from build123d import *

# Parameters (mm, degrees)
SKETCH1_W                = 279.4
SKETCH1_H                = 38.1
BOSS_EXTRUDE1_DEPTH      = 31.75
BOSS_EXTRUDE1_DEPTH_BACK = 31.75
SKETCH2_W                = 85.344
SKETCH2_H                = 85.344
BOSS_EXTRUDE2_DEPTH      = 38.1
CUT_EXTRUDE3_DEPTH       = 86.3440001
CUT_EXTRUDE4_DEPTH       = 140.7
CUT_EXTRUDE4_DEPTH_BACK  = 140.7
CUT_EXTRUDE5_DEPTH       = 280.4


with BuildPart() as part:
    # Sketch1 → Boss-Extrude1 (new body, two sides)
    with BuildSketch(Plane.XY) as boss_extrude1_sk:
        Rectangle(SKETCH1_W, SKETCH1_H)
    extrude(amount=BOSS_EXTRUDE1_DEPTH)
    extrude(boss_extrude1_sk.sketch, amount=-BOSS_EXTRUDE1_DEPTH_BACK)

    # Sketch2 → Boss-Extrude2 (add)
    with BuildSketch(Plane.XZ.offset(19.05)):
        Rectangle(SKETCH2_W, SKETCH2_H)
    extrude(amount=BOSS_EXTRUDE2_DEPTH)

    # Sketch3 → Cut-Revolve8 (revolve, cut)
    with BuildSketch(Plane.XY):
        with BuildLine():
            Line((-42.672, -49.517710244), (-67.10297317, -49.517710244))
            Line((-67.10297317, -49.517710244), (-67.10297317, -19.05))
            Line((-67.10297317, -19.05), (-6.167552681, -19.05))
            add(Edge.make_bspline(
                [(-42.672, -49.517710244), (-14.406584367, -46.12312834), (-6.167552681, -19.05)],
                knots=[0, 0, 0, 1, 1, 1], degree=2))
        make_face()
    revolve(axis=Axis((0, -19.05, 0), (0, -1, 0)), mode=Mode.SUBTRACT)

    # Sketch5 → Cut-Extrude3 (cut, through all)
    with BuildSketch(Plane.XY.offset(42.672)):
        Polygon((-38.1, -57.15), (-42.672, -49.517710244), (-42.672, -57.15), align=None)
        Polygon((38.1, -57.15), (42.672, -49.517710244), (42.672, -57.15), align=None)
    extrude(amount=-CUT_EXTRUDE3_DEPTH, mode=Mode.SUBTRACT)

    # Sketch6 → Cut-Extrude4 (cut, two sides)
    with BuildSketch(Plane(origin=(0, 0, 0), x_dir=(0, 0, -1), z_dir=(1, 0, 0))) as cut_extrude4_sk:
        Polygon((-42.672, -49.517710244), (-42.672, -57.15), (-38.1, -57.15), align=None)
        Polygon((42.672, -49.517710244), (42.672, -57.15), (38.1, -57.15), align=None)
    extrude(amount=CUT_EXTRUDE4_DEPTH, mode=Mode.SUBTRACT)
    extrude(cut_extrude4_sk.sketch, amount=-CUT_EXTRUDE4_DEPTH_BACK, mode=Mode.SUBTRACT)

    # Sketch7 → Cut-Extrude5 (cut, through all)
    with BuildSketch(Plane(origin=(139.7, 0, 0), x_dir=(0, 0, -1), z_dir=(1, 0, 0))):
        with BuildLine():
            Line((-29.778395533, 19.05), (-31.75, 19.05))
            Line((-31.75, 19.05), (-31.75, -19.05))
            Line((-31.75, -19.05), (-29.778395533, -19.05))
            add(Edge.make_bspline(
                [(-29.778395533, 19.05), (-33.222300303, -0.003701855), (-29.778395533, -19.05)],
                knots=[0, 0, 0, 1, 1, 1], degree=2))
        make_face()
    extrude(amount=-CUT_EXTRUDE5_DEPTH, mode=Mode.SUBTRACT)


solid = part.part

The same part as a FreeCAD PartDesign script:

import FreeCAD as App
import Part
import Sketcher
from FreeCAD import Vector
Q = App.Units.Quantity

doc = App.newDocument("Part")
body = doc.addObject("PartDesign::Body", "Body")

sketch1 = body.newObject("Sketcher::SketchObject", "Sketch")
sketch1.AttachmentSupport = (doc.getObject("XY_Plane"), [""])
sketch1.MapMode = "FlatFace"
sketch1.addGeometry([
    Part.LineSegment(Vector(-140, 19, 0), Vector(-140, -19, 0)),
    Part.LineSegment(Vector(-140, -19, 0), Vector(140, -19, 0)),
    Part.LineSegment(Vector(140, -19, 0), Vector(140, 19, 0)),
    Part.LineSegment(Vector(140, 19, 0), Vector(-140, 19, 0)),
], False)
sketch1.addConstraint([
    Sketcher.Constraint("Coincident", 0, 2, 1, 1),
    Sketcher.Constraint("Coincident", 1, 2, 2, 1),
    Sketcher.Constraint("Coincident", 2, 2, 3, 1),
    Sketcher.Constraint("Coincident", 3, 2, 0, 1),
    Sketcher.Constraint("Vertical", 0),
    Sketcher.Constraint("Horizontal", 1),
    Sketcher.Constraint("Vertical", 2),
    Sketcher.Constraint("Horizontal", 3),
    Sketcher.Constraint("Symmetric", 0, 2, 2, 2, -1, 1),
    Sketcher.Constraint("DistanceX", 1, 1, 1, 2, Q("11 in")),
    Sketcher.Constraint("DistanceY", 0, 2, 0, 1, Q("1.5 in")),
])
pad1 = body.newObject("PartDesign::Pad", "Pad")
pad1.Profile = sketch1
pad1.Type = "TwoLengths"
pad1.Length = Q("1.25 in")
pad1.Length2 = Q("1.25 in")

sketch2 = body.newObject("Sketcher::SketchObject", "Sketch001")
sketch2.AttachmentSupport = (doc.getObject("XZ_Plane"), [""])
sketch2.MapMode = "FlatFace"
sketch2.AttachmentOffset = App.Placement(Vector(0, 0, 0.75 * 25.4), App.Rotation())
sketch2.addGeometry([
    Part.LineSegment(Vector(-43, 43, 0), Vector(-43, -43, 0)),
    Part.LineSegment(Vector(-43, -43, 0), Vector(43, -43, 0)),
    Part.LineSegment(Vector(43, -43, 0), Vector(43, 43, 0)),
    Part.LineSegment(Vector(43, 43, 0), Vector(-43, 43, 0)),
], False)
sketch2.addConstraint([
    Sketcher.Constraint("Coincident", 0, 2, 1, 1),
    Sketcher.Constraint("Coincident", 1, 2, 2, 1),
    Sketcher.Constraint("Coincident", 2, 2, 3, 1),
    Sketcher.Constraint("Coincident", 3, 2, 0, 1),
    Sketcher.Constraint("Vertical", 0),
    Sketcher.Constraint("Horizontal", 1),
    Sketcher.Constraint("Vertical", 2),
    Sketcher.Constraint("Horizontal", 3),
    Sketcher.Constraint("Symmetric", 0, 2, 2, 2, -1, 1),
    Sketcher.Constraint("Equal", 3, 0),
    Sketcher.Constraint("DistanceX", 1, 1, 1, 2, Q("3.36 in")),
])
pad2 = body.newObject("PartDesign::Pad", "Pad001")
pad2.Profile = sketch2
pad2.Length = Q("1.5 in")

sketch3 = body.newObject("Sketcher::SketchObject", "Sketch002")
sketch3.AttachmentSupport = (doc.getObject("XY_Plane"), [""])
sketch3.MapMode = "FlatFace"
sketch3.addGeometry([
    Part.LineSegment(Vector(-67.102973, -49.51771, 0), Vector(-42.672, -49.51771, 0)),
    Part.BSplineCurve([Vector(-42.672, -49.51771, 0), Vector(-14.406584, -46.123128, 0), Vector(-6.167553, -19.05, 0)], [3, 3], [0, 1], False, 2, [1, 1, 1], False),
    Part.LineSegment(Vector(-6.167553, -19.05, 0), Vector(-67.102973, -19.05, 0)),
    Part.LineSegment(Vector(-67.102973, -19.05, 0), Vector(-67.102973, -49.51771, 0)),
], False)
sketch3.addConstraint([
    Sketcher.Constraint("Block", 1),
    Sketcher.Constraint("Coincident", 0, 2, 1, 1),
    Sketcher.Constraint("Coincident", 1, 2, 2, 1),
    Sketcher.Constraint("Coincident", 2, 2, 3, 1),
    Sketcher.Constraint("Coincident", 3, 2, 0, 1),
    Sketcher.Constraint("Horizontal", 0),
    Sketcher.Constraint("Horizontal", 2),
    Sketcher.Constraint("Vertical", 3),
    Sketcher.Constraint("DistanceX", 2, 2, 2, 1, 60.93542),
])
groove = body.newObject("PartDesign::Groove", "Groove")
groove.Profile = sketch3
groove.ReferenceAxis = (sketch3, ["V_Axis"])
groove.Angle = 360

sketch4 = body.newObject("Sketcher::SketchObject", "Sketch003")
sketch4.AttachmentSupport = (doc.getObject("XY_Plane"), [""])
sketch4.MapMode = "FlatFace"
sketch4.AttachmentOffset = App.Placement(Vector(0, 0, 1.68 * 25.4), App.Rotation())
sketch4.addGeometry([
    Part.LineSegment(Vector(-38.1, -57.1, 0), Vector(-42.7, -49.5, 0)),
    Part.LineSegment(Vector(-42.7, -49.5, 0), Vector(-42.7, -57.1, 0)),
    Part.LineSegment(Vector(-42.7, -57.1, 0), Vector(-38.1, -57.1, 0)),
    Part.LineSegment(Vector(42.7, -49.5, 0), Vector(38.1, -57.1, 0)),
    Part.LineSegment(Vector(38.1, -57.1, 0), Vector(42.7, -57.1, 0)),
    Part.LineSegment(Vector(42.7, -57.1, 0), Vector(42.7, -49.5, 0)),
], False)
sketch4.addConstraint([
    Sketcher.Constraint("Coincident", 0, 2, 1, 1),
    Sketcher.Constraint("Coincident", 1, 2, 2, 1),
    Sketcher.Constraint("Coincident", 2, 2, 0, 1),
    Sketcher.Constraint("Coincident", 3, 2, 4, 1),
    Sketcher.Constraint("Coincident", 4, 2, 5, 1),
    Sketcher.Constraint("Coincident", 5, 2, 3, 1),
    Sketcher.Constraint("Vertical", 1),
    Sketcher.Constraint("Horizontal", 2),
    Sketcher.Constraint("Horizontal", 4),
    Sketcher.Constraint("Vertical", 5),
    Sketcher.Constraint("Symmetric", 2, 2, 3, 2, -2),
    Sketcher.Constraint("Symmetric", 0, 2, 5, 2, -2),
    Sketcher.Constraint("DistanceX", 2, 2, 3, 2, Q("3 in")),
    Sketcher.Constraint("DistanceX", 2, 1, 2, 2, Q("0.18 in")),
    Sketcher.Constraint("DistanceY", 1, 2, -1, 1, Q("2.25 in")),
    Sketcher.Constraint("DistanceY", 1, 2, 1, 1, 7.63229),
])
pocket1 = body.newObject("PartDesign::Pocket", "Pocket")
pocket1.Profile = sketch4
pocket1.Type = "ThroughAll"

sketch5 = body.newObject("Sketcher::SketchObject", "Sketch004")
sketch5.AttachmentSupport = (doc.getObject("YZ_Plane"), [""])
sketch5.MapMode = "FlatFace"
sketch5.addGeometry([
    Part.LineSegment(Vector(-49.5, 42.7, 0), Vector(-57.1, 42.7, 0)),
    Part.LineSegment(Vector(-57.1, 42.7, 0), Vector(-57.1, 38.1, 0)),
    Part.LineSegment(Vector(-57.1, 38.1, 0), Vector(-49.5, 42.7, 0)),
    Part.LineSegment(Vector(-57.1, -42.7, 0), Vector(-49.5, -42.7, 0)),
    Part.LineSegment(Vector(-49.5, -42.7, 0), Vector(-57.1, -38.1, 0)),
    Part.LineSegment(Vector(-57.1, -38.1, 0), Vector(-57.1, -42.7, 0)),
], False)
sketch5.addConstraint([
    Sketcher.Constraint("Coincident", 0, 2, 1, 1),
    Sketcher.Constraint("Coincident", 1, 2, 2, 1),
    Sketcher.Constraint("Coincident", 2, 2, 0, 1),
    Sketcher.Constraint("Coincident", 3, 2, 4, 1),
    Sketcher.Constraint("Coincident", 4, 2, 5, 1),
    Sketcher.Constraint("Coincident", 5, 2, 3, 1),
    Sketcher.Constraint("Horizontal", 0),
    Sketcher.Constraint("Vertical", 1),
    Sketcher.Constraint("Horizontal", 3),
    Sketcher.Constraint("Vertical", 5),
    Sketcher.Constraint("Symmetric", 2, 2, 3, 2, -1),
    Sketcher.Constraint("Symmetric", 1, 2, 4, 2, -1),
    Sketcher.Constraint("DistanceY", 4, 2, 1, 2, Q("3 in")),
    Sketcher.Constraint("DistanceY", 1, 2, 1, 1, Q("0.18 in")),
    Sketcher.Constraint("DistanceX", 0, 2, -1, 1, Q("2.25 in")),
    Sketcher.Constraint("DistanceX", 0, 2, 0, 1, 7.63229),
])
pocket2 = body.newObject("PartDesign::Pocket", "Pocket001")
pocket2.Profile = sketch5
pocket2.Type = "ThroughAll"
pocket2.Midplane = True

sketch6 = body.newObject("Sketcher::SketchObject", "Sketch005")
sketch6.AttachmentSupport = (doc.getObject("YZ_Plane"), [""])
sketch6.MapMode = "FlatFace"
sketch6.AttachmentOffset = App.Placement(Vector(0, 0, 5.5 * 25.4), App.Rotation())
sketch6.addGeometry([
    Part.LineSegment(Vector(19.05, 29.778396, 0), Vector(19.05, 31.75, 0)),
    Part.LineSegment(Vector(19.05, 31.75, 0), Vector(-19.05, 31.75, 0)),
    Part.LineSegment(Vector(-19.05, 31.75, 0), Vector(-19.05, 29.778396, 0)),
    Part.BSplineCurve([Vector(19.05, 29.778396, 0), Vector(-0.003702, 33.2223, 0), Vector(-19.05, 29.778396, 0)], [3, 3], [0, 1], False, 2, [1, 1, 1], False),
], False)
sketch6.addConstraint([
    Sketcher.Constraint("Block", 3),
    Sketcher.Constraint("Coincident", 0, 2, 1, 1),
    Sketcher.Constraint("Coincident", 1, 2, 2, 1),
    Sketcher.Constraint("Coincident", 2, 2, 3, 2),
    Sketcher.Constraint("Coincident", 3, 1, 0, 1),
    Sketcher.Constraint("Vertical", 0),
    Sketcher.Constraint("Horizontal", 1),
    Sketcher.Constraint("Vertical", 2),
    Sketcher.Constraint("DistanceY", -1, 1, 0, 2, Q("1.25 in")),
])
pocket3 = body.newObject("PartDesign::Pocket", "Pocket002")
pocket3.Profile = sketch6
pocket3.Type = "ThroughAll"

doc.recompute()
